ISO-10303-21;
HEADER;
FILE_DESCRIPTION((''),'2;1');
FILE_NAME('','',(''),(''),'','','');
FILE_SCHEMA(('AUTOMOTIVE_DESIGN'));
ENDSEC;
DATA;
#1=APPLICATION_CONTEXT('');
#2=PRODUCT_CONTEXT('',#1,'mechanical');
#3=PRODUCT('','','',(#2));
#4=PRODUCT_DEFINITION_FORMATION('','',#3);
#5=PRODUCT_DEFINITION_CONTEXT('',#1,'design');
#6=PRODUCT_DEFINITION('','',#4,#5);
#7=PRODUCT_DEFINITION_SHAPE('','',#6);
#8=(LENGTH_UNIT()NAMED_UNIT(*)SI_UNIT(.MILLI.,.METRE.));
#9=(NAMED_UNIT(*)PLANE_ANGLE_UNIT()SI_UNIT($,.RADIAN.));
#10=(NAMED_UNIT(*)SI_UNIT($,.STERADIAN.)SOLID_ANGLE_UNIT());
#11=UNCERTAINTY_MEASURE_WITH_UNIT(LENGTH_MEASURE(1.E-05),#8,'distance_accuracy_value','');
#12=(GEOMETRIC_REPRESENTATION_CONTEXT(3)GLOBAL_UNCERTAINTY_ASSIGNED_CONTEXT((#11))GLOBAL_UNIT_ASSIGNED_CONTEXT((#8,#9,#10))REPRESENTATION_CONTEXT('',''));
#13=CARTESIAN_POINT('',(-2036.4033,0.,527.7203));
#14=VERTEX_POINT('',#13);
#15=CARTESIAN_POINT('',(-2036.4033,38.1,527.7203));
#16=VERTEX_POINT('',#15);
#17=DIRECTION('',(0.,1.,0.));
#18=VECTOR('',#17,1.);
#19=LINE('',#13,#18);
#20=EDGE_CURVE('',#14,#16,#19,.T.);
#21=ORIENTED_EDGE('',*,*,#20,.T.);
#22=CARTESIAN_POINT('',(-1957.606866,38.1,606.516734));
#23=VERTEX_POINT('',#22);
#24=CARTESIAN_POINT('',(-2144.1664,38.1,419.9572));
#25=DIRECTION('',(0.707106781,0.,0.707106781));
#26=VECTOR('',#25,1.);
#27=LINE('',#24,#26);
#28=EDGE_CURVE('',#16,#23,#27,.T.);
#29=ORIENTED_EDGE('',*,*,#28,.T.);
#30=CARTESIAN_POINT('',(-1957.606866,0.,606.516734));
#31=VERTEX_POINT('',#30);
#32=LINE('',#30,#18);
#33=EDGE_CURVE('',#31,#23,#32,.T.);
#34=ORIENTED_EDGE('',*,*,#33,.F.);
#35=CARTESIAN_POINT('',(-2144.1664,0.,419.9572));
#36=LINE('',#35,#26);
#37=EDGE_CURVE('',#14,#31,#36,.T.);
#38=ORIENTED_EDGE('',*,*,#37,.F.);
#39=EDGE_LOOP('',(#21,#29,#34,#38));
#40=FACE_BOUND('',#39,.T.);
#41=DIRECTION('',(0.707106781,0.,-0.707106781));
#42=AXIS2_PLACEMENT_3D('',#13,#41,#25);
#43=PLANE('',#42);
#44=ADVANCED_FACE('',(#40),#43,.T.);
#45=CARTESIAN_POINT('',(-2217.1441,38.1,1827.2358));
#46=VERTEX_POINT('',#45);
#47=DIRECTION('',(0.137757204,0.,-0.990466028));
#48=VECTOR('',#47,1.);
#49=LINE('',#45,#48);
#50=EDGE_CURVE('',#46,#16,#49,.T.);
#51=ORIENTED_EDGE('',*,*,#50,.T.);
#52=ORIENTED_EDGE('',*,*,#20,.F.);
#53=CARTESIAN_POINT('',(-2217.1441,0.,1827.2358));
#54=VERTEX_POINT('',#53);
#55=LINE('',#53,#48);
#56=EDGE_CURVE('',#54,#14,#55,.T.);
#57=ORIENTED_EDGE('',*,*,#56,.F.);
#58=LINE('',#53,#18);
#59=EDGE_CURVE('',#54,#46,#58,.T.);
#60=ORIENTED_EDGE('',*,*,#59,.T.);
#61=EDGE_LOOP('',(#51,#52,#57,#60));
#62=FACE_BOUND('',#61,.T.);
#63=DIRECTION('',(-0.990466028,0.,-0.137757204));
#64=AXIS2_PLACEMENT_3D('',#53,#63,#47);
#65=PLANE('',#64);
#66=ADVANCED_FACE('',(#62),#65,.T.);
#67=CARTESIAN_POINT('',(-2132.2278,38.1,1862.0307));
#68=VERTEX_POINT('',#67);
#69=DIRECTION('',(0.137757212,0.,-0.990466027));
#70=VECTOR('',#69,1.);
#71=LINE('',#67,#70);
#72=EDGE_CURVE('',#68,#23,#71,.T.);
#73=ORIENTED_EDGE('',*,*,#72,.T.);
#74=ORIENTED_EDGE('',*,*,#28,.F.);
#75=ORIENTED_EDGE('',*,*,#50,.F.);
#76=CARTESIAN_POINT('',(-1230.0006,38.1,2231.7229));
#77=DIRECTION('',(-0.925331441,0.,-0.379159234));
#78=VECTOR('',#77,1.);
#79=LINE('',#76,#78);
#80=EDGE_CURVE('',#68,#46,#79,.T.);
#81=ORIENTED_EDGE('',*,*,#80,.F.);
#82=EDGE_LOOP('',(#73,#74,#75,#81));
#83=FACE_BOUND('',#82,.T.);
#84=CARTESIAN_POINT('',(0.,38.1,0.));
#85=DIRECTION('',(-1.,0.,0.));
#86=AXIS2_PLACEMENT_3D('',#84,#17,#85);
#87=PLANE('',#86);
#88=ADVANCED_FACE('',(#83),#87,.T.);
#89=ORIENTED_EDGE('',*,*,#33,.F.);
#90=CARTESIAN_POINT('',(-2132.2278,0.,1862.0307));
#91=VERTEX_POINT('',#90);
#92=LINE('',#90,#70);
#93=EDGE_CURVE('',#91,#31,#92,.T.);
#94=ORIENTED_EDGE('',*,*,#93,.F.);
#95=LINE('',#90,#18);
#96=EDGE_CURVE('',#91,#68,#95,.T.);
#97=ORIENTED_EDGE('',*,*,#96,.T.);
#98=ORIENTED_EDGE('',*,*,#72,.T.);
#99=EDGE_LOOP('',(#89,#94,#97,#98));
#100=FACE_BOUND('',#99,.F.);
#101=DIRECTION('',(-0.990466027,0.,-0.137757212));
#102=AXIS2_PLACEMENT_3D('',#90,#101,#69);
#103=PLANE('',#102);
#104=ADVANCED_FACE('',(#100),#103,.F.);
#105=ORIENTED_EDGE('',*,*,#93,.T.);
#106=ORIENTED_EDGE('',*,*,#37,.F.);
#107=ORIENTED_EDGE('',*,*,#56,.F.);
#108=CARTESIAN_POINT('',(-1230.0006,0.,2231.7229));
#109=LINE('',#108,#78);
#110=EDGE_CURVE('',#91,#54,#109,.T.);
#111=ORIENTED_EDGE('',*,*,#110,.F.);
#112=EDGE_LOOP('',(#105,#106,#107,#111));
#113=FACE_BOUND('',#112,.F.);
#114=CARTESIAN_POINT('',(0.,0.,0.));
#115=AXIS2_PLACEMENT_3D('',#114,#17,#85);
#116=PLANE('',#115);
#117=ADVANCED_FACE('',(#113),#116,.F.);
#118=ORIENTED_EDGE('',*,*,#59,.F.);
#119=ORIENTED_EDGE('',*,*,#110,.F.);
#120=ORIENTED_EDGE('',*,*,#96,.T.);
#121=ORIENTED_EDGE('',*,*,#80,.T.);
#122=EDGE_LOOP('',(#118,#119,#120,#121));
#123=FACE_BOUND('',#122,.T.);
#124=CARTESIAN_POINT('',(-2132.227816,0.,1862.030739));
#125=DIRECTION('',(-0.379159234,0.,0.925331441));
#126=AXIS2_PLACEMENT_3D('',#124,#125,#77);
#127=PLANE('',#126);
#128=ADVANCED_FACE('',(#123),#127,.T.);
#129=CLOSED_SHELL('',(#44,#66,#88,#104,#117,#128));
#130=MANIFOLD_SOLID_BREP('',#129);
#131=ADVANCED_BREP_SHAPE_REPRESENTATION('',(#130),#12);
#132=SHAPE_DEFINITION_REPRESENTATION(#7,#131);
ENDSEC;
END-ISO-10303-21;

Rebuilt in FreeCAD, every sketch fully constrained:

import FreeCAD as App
import Part
import Sketcher
Q = App.Units.Quantity


def add_polygon(sketch, points):
    """Adds a closed chain of lines whose ends are joined by coincident constraints."""
    first, n = sketch.GeometryCount, len(points)
    for a, b in zip(points, points[1:] + points[:1]):
        sketch.addGeometry(Part.LineSegment(App.Vector(*a, 0), App.Vector(*b, 0)), False)
    for i in range(n):
        sketch.addConstraint(Sketcher.Constraint("Coincident", first + i, 2, first + (i + 1) % n, 1))

doc = App.newDocument("Part")
body = doc.addObject("PartDesign::Body", "Body")

# Sketch on XZ plane
sketch1 = body.newObject("Sketcher::SketchObject", "Sketch")
sketch1.AttachmentSupport = (doc.getObject("XZ_Plane"), [""])
sketch1.MapMode = "FlatFace"
add_polygon(sketch1, [(-1958, 607), (-2036, 528), (-2217, 1827), (-2132, 1862)])  # lines 0-3
sketch1.addConstraint([
    Sketcher.Constraint("Parallel", 1, 3),
    Sketcher.Constraint("Angle", 0, Q("-135 deg")),
    Sketcher.Constraint("DistanceX", 1, 2, 3, 2, Q("10.218 in")),
    Sketcher.Constraint("Distance", 0, Q("4.3872 in")),
    Sketcher.Constraint("Distance", 1, Q("51.6545 in")),
    Sketcher.Constraint("DistanceY", -1, 1, 0, 2, Q("20.7764 in")),
    Sketcher.Constraint("DistanceY", -1, 1, 2, 2, Q("73.3083 in")),
    Sketcher.Constraint("DistanceX", 0, 2, -1, 1, 2036.4033),
])
pad1 = body.newObject("PartDesign::Pad", "Pad")
pad1.Profile = sketch1
pad1.Length = Q("1.5 in")
pad1.Reversed = True

doc.recompute()
